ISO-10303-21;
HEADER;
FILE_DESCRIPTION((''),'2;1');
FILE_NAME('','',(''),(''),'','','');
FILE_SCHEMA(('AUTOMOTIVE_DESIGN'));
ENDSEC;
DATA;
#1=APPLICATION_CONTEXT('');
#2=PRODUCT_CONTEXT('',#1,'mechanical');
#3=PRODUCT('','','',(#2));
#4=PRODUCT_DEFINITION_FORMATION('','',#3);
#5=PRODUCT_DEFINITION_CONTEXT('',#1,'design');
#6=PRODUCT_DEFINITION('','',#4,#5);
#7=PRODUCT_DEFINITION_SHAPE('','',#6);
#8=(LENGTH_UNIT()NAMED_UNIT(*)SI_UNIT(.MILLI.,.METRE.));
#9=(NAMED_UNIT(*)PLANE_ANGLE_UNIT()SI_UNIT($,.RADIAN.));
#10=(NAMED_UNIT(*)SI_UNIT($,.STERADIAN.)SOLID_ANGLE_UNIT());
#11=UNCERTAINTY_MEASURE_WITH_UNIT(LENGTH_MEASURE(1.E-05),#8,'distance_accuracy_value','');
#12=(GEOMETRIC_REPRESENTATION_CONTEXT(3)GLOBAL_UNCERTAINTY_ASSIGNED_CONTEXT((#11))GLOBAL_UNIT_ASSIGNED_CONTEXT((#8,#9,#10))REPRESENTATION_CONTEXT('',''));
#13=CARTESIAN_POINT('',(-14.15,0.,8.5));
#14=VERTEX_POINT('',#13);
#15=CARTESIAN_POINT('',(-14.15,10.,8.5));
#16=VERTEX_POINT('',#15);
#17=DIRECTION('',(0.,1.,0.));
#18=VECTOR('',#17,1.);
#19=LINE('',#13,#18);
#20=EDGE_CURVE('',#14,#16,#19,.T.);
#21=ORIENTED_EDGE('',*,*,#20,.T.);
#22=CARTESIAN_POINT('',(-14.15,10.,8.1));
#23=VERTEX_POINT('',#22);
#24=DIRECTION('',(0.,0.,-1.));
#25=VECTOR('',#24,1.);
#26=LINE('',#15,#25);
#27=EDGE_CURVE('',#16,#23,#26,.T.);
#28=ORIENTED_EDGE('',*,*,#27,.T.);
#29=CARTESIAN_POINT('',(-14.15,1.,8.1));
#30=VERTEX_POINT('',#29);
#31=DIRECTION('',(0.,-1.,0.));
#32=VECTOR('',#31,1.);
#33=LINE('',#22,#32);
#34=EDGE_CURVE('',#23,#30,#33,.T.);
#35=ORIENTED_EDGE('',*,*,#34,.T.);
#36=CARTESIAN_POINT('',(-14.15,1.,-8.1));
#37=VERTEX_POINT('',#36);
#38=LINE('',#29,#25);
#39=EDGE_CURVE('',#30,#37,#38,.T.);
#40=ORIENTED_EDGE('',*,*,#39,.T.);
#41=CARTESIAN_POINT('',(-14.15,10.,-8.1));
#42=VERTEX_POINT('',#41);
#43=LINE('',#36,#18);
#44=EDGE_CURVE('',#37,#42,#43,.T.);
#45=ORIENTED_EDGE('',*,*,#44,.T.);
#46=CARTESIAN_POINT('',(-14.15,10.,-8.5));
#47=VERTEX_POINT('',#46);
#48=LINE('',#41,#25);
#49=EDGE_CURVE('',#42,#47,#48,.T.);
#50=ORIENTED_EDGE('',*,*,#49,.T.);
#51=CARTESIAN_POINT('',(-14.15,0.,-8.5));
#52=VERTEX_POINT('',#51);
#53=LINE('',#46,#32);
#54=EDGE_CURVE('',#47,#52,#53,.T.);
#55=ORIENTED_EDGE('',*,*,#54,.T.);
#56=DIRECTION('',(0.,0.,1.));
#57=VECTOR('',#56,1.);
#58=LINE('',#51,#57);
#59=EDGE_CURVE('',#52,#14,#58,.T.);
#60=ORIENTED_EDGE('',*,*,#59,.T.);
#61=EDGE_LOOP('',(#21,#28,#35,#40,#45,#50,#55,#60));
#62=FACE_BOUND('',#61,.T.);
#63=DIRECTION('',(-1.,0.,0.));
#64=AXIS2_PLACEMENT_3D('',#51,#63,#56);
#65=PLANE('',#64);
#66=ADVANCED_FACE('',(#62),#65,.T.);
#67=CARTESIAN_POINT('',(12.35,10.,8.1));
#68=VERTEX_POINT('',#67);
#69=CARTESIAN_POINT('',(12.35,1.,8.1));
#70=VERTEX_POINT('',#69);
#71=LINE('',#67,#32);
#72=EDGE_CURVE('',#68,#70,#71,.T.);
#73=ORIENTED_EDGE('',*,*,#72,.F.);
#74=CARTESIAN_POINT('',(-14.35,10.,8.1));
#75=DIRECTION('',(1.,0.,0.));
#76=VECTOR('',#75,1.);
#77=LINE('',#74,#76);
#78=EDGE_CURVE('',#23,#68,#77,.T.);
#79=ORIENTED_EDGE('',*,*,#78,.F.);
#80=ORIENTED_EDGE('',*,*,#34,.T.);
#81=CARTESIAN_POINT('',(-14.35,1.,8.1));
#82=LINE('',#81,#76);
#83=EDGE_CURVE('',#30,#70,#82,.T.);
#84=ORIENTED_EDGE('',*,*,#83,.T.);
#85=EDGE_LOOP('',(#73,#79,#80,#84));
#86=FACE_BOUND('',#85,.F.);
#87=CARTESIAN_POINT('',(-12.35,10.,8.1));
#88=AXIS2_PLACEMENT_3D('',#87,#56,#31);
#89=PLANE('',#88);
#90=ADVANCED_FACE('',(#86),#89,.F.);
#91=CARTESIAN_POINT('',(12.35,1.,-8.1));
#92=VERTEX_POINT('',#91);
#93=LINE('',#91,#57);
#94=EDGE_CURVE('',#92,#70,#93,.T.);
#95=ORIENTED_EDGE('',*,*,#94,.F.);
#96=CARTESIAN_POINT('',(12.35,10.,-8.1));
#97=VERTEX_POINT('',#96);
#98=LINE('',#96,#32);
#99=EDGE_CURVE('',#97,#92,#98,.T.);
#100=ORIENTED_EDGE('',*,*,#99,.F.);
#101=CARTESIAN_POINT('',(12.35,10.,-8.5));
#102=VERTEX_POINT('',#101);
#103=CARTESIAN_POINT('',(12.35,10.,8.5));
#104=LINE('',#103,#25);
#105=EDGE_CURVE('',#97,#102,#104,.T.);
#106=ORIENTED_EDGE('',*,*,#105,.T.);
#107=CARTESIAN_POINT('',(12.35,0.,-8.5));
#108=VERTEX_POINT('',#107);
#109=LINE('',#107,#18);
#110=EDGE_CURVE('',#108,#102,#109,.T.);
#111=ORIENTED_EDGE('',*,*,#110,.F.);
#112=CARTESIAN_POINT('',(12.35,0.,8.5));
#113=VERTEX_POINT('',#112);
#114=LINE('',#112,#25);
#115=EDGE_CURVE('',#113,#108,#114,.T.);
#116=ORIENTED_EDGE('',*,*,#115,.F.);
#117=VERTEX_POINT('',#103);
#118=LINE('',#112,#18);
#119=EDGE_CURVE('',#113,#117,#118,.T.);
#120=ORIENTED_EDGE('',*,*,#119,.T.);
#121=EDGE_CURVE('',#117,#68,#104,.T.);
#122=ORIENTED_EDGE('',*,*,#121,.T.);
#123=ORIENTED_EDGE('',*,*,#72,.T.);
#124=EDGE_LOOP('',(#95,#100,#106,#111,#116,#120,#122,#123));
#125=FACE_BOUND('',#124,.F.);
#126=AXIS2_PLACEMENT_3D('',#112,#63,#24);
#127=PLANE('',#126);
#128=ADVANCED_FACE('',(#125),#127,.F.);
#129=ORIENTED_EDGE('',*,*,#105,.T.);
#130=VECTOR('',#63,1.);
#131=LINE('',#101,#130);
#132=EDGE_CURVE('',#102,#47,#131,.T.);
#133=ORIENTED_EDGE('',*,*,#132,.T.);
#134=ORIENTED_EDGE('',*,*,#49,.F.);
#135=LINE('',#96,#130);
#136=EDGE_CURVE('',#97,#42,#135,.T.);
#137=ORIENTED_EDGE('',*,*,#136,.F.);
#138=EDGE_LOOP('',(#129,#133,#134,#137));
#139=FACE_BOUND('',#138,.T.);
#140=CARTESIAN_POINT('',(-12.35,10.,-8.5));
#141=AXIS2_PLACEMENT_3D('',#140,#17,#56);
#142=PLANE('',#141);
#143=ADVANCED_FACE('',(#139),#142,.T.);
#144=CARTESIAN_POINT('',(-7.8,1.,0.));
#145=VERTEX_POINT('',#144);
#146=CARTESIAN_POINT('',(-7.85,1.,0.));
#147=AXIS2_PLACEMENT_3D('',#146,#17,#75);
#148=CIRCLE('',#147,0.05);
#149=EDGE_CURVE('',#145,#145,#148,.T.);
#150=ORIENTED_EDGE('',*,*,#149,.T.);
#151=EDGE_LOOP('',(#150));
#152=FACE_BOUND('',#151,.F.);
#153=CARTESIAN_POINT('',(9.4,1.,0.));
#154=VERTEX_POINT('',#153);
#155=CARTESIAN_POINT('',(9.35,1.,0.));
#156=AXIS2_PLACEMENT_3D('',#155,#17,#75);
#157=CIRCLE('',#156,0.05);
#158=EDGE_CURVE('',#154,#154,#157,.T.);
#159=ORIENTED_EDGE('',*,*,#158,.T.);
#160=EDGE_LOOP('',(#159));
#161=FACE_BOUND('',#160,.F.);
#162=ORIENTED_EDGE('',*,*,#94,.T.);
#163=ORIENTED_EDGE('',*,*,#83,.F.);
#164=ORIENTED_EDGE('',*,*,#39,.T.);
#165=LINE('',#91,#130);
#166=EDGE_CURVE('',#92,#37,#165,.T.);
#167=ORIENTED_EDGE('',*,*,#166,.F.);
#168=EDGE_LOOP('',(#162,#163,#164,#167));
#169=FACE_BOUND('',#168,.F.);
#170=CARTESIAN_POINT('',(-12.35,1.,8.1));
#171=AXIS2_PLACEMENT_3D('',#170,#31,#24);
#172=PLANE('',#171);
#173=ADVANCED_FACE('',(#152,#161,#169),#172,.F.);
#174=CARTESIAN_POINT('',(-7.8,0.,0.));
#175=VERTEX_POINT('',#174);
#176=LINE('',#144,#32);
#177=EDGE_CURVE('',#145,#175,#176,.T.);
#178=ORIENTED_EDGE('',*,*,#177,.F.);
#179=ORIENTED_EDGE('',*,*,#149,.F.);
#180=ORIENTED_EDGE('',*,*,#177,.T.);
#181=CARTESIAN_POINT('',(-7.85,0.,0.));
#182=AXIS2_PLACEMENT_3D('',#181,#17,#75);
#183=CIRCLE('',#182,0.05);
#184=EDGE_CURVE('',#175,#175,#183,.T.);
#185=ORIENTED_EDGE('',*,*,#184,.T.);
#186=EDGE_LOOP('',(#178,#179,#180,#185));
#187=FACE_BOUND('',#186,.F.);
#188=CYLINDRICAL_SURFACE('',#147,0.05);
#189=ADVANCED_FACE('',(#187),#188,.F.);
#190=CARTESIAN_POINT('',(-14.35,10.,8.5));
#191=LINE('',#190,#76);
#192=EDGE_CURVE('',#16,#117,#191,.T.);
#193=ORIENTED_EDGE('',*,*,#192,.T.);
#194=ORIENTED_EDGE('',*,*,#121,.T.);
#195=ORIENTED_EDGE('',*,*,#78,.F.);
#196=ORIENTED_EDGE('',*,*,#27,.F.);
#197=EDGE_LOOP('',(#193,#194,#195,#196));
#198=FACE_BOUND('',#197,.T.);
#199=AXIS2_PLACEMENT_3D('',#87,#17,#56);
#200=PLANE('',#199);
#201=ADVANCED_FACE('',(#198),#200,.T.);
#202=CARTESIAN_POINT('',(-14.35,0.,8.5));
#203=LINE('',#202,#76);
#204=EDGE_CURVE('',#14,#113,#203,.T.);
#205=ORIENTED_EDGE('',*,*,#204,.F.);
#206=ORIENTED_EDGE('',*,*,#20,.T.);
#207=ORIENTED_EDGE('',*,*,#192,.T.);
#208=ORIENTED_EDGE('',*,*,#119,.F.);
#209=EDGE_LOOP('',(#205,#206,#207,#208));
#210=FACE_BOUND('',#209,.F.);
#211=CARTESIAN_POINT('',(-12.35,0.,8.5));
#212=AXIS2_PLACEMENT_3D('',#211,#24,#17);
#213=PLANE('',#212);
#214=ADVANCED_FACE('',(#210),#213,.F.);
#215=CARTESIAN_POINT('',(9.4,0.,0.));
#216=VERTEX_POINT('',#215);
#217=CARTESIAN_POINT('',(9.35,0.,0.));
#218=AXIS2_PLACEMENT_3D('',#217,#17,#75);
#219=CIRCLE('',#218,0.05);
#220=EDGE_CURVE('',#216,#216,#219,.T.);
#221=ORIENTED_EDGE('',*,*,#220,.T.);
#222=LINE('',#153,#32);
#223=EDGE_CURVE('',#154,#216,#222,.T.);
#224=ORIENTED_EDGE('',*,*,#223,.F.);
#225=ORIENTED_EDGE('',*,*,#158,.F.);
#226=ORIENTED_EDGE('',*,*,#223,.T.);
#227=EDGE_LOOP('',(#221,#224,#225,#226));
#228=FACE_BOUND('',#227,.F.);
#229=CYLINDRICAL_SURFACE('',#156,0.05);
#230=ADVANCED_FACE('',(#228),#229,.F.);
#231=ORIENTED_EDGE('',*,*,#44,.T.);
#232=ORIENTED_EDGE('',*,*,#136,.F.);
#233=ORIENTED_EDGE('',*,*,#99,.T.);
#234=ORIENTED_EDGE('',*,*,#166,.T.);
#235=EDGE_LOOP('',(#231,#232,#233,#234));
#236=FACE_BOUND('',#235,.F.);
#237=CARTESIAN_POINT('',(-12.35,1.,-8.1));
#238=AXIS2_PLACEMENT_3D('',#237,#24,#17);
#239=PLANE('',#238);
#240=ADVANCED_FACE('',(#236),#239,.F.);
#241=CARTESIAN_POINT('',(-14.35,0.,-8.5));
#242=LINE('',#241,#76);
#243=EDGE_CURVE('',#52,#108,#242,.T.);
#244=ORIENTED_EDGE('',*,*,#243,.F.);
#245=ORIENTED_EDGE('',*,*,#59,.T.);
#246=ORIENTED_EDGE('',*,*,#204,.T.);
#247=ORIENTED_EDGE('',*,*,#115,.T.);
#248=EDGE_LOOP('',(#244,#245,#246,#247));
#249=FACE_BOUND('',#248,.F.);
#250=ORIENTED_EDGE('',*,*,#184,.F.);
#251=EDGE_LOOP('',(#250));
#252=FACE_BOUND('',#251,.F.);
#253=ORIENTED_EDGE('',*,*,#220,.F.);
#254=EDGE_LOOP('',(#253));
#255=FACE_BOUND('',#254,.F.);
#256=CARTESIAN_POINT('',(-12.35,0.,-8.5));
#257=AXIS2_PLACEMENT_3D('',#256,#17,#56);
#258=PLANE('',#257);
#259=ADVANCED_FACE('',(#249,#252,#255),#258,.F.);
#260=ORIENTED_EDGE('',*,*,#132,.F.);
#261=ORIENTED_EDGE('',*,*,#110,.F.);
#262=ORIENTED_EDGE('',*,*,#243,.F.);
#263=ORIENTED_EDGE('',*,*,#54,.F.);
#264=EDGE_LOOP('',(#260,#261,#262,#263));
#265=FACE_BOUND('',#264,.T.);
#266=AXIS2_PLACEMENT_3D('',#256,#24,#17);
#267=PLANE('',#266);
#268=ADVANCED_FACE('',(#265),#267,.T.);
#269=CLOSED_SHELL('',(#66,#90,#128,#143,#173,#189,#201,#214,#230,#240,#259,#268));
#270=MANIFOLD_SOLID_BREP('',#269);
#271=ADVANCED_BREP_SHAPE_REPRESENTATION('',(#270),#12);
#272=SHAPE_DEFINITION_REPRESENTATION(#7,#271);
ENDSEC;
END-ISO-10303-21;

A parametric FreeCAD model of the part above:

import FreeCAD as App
import Part
import Sketcher

V = App.Vector

doc = App.newDocument("Part")
body = doc.addObject("PartDesign::Body", "Body")

sketch1 = body.newObject("Sketcher::SketchObject", "Sketch")
sketch1.AttachmentSupport = (doc.getObject("XZ_Plane"), [""])
sketch1.MapMode = "FlatFace"
sketch1.addGeometry([
    Part.LineSegment(V(-12, -8, 0), V(-12, 8, 0)),
    Part.LineSegment(V(-12, 8, 0), V(12, 8, 0)),
    Part.LineSegment(V(12, 8, 0), V(12, -8, 0)),
    Part.LineSegment(V(12, -8, 0), V(-12, -8, 0)),
], False)
sketch1.addConstraint([
    Sketcher.Constraint("Coincident", 0, 2, 1, 1),
    Sketcher.Constraint("Coincident", 1, 2, 2, 1),
    Sketcher.Constraint("Coincident", 2, 2, 3, 1),
    Sketcher.Constraint("Coincident", 3, 2, 0, 1),
    Sketcher.Constraint("Vertical", 0),
    Sketcher.Constraint("Horizontal", 1),
    Sketcher.Constraint("Vertical", 2),
    Sketcher.Constraint("Horizontal", 3),
    Sketcher.Constraint("Symmetric", 0, 2, 2, 2, -1, 1),
    Sketcher.Constraint("DistanceY", 0, 1, 0, 2, 17.0),
    Sketcher.Constraint("DistanceX", 1, 1, 1, 2, 24.7),
])
pad1 = body.newObject("PartDesign::Pad", "Pad")
pad1.Profile = sketch1
pad1.Length = 10
pad1.Reversed = True

sketch2 = body.newObject("Sketcher::SketchObject", "Sketch001")
sketch2.AttachmentSupport = (doc.getObject("XZ_Plane"), [""])
sketch2.MapMode = "FlatFace"
sketch2.AttachmentOffset = App.Placement(V(0, 0, -10), App.Rotation())
sketch2.addGeometry([
    Part.LineSegment(V(12, -8, 0), V(-12, -8, 0)),
    Part.LineSegment(V(-12, -8, 0), V(-12, 8, 0)),
    Part.LineSegment(V(-12, 8, 0), V(12, 8, 0)),
    Part.LineSegment(V(12, 8, 0), V(12, -8, 0)),
], False)
sketch2.addConstraint([
    Sketcher.Constraint("Coincident", 0, 2, 1, 1),
    Sketcher.Constraint("Coincident", 1, 2, 2, 1),
    Sketcher.Constraint("Coincident", 2, 2, 3, 1),
    Sketcher.Constraint("Coincident", 3, 2, 0, 1),
    Sketcher.Constraint("Horizontal", 0),
    Sketcher.Constraint("Vertical", 1),
    Sketcher.Constraint("Horizontal", 2),
    Sketcher.Constraint("Vertical", 3),
    Sketcher.Constraint("Symmetric", 0, 2, 2, 2, -1, 1),
    Sketcher.Constraint("DistanceX", 0, 2, 0, 1, 24.7),
    Sketcher.Constraint("DistanceY", 1, 1, 1, 2, 16.2),
])
pocket1 = body.newObject("PartDesign::Pocket", "Pocket")
pocket1.Profile = sketch2
pocket1.Length = 9
pocket1.Reversed = True

sketch3 = body.newObject("Sketcher::SketchObject", "Sketch002")
sketch3.AttachmentSupport = (doc.getObject("XZ_Plane"), [""])
sketch3.MapMode = "FlatFace"
sketch3.addGeometry([
    Part.Circle(V(-9.3, 0, 0), V(0, 0, 1), 1.5),
    Part.Circle(V(9.3, 0, 0), V(0, 0, 1), 1.5),
], False)
sketch3.addConstraint([
    Sketcher.Constraint("Equal", 0, 1),
    Sketcher.Constraint("Symmetric", 0, 3, 1, 3, -1, 1),
    Sketcher.Constraint("PointOnObject", 0, 3, -1),
    Sketcher.Constraint("Diameter", 0, 3.0),
    Sketcher.Constraint("DistanceX", 0, 3, 1, 3, 18.7),
])
pocket2 = body.newObject("PartDesign::Pocket", "Pocket001")
pocket2.Profile = sketch3
pocket2.Length = 1

sketch4 = body.newObject("Sketcher::SketchObject", "Sketch003")
sketch4.AttachmentSupport = (doc.getObject("YZ_Plane"), [""])
sketch4.MapMode = "FlatFace"
sketch4.AttachmentOffset = App.Placement(V(0, 0, -12.35), App.Rotation())
sketch4.addGeometry([
    Part.LineSegment(V(1, 8.1, 0), V(1, -8.1, 0)),
    Part.LineSegment(V(1, -8.1, 0), V(10, -8.1, 0)),
    Part.LineSegment(V(10, -8.1, 0), V(10, -8.5, 0)),
    Part.LineSegment(V(10, -8.5, 0), V(0, -8.5, 0)),
    Part.LineSegment(V(0, -8.5, 0), V(0, 8.5, 0)),
    Part.LineSegment(V(0, 8.5, 0), V(10, 8.5, 0)),
    Part.LineSegment(V(10, 8.5, 0), V(10, 8.1, 0)),
    Part.LineSegment(V(10, 8.1, 0), V(1, 8.1, 0)),
], False)
sketch4.addConstraint([
    Sketcher.Constraint("Coincident", 0, 2, 1, 1),
    Sketcher.Constraint("Coincident", 1, 2, 2, 1),
    Sketcher.Constraint("Coincident", 2, 2, 3, 1),
    Sketcher.Constraint("Coincident", 3, 2, 4, 1),
    Sketcher.Constraint("Coincident", 4, 2, 5, 1),
    Sketcher.Constraint("Coincident", 5, 2, 6, 1),
    Sketcher.Constraint("Coincident", 6, 2, 7, 1),
    Sketcher.Constraint("Coincident", 7, 2, 0, 1),
    Sketcher.Constraint("Vertical", 0),
    Sketcher.Constraint("Horizontal", 1),
    Sketcher.Constraint("Vertical", 2),
    Sketcher.Constraint("Horizontal", 3),
    Sketcher.Constraint("Vertical", 4),
    Sketcher.Constraint("Horizontal", 5),
    Sketcher.Constraint("Vertical", 6),
    Sketcher.Constraint("Horizontal", 7),
    Sketcher.Constraint("Symmetric", 3, 2, 4, 2, -1, 1),
    Sketcher.Constraint("Symmetric", 1, 2, 6, 2, -1),
    Sketcher.Constraint("DistanceX", 1, 1, 1, 2, 9.0),
    Sketcher.Constraint("DistanceX", 3, 2, 3, 1, 10.0),
    Sketcher.Constraint("DistanceY", 4, 1, 4, 2, 17.0),
    Sketcher.Constraint("DistanceY", 0, 2, 0, 1, 16.2),
])
pad2 = body.newObject("PartDesign::Pad", "Pad001")
pad2.Profile = sketch4
pad2.Length = 2
pad2.Reversed = True

sketch5 = body.newObject("Sketcher::SketchObject", "Sketch004")
sketch5.AttachmentSupport = (doc.getObject("YZ_Plane"), [""])
sketch5.MapMode = "FlatFace"
sketch5.AttachmentOffset = App.Placement(V(0, 0, -14.35), App.Rotation())
sketch5.addGeometry([
    Part.LineSegment(V(1, 8.1, 0), V(1, -8.1, 0)),
    Part.LineSegment(V(1, -8.1, 0), V(10, -8.1, 0)),
    Part.LineSegment(V(10, -8.1, 0), V(10, -8.5, 0)),
    Part.LineSegment(V(10, -8.5, 0), V(0, -8.5, 0)),
    Part.LineSegment(V(0, -8.5, 0), V(0, 8.5, 0)),
    Part.LineSegment(V(0, 8.5, 0), V(10, 8.5, 0)),
    Part.LineSegment(V(10, 8.5, 0), V(10, 8.1, 0)),
    Part.LineSegment(V(10, 8.1, 0), V(1, 8.1, 0)),
], False)
sketch5.addConstraint([
    Sketcher.Constraint("Coincident", 0, 2, 1, 1),
    Sketcher.Constraint("Coincident", 1, 2, 2, 1),
    Sketcher.Constraint("Coincident", 2, 2, 3, 1),
    Sketcher.Constraint("Coincident", 3, 2, 4, 1),
    Sketcher.Constraint("Coincident", 4, 2, 5, 1),
    Sketcher.Constraint("Coincident", 5, 2, 6, 1),
    Sketcher.Constraint("Coincident", 6, 2, 7, 1),
    Sketcher.Constraint("Coincident", 7, 2, 0, 1),
    Sketcher.Constraint("Vertical", 0),
    Sketcher.Constraint("Horizontal", 1),
    Sketcher.Constraint("Vertical", 2),
    Sketcher.Constraint("Horizontal", 3),
    Sketcher.Constraint("Vertical", 4),
    Sketcher.Constraint("Horizontal", 5),
    Sketcher.Constraint("Vertical", 6),
    Sketcher.Constraint("Horizontal", 7),
    Sketcher.Constraint("Symmetric", 3, 2, 4, 2, -1, 1),
    Sketcher.Constraint("Symmetric", 1, 2, 6, 2, -1),
    Sketcher.Constraint("DistanceX", 1, 1, 1, 2, 9.0),
    Sketcher.Constraint("DistanceX", 3, 2, 3, 1, 10.0),
    Sketcher.Constraint("DistanceY", 4, 1, 4, 2, 17.0),
    Sketcher.Constraint("DistanceY", 0, 2, 0, 1, 16.2),
])
pocket3 = body.newObject("PartDesign::Pocket", "Pocket002")
pocket3.Profile = sketch5
pocket3.Length = 0.2
pocket3.Reversed = True

sketch6 = body.newObject("Sketcher::SketchObject", "Sketch005")
sketch6.AttachmentSupport = (doc.getObject("XZ_Plane"), [""])
sketch6.MapMode = "FlatFace"
sketch6.addGeometry(Part.Circle(V(-9.3, 0, 0), V(0, 0, 1), 1.5), False)
sketch6.addConstraint([
    Sketcher.Constraint("PointOnObject", 0, 3, -1),
    Sketcher.Constraint("Diameter", 0, 3.0),
    Sketcher.Constraint("DistanceX", 0, 3, -1, 1, 9.35),
])
pad3 = body.newObject("PartDesign::Pad", "Pad002")
pad3.Profile = sketch6
pad3.Length = 1
pad3.Reversed = True

sketch7 = body.newObject("Sketcher::SketchObject", "Sketch006")
sketch7.AttachmentSupport = (doc.getObject("XZ_Plane"), [""])
sketch7.MapMode = "FlatFace"
sketch7.addGeometry(Part.Circle(V(-7.8, 0, 0), V(0, 0, 1), 1.5), False)
sketch7.addConstraint([
    Sketcher.Constraint("PointOnObject", 0, 3, -1),
    Sketcher.Constraint("Diameter", 0, 3.0),
    Sketcher.Constraint("DistanceX", 0, 3, -1, 1, 7.85),
])
pocket4 = body.newObject("PartDesign::Pocket", "Pocket003")
pocket4.Profile = sketch7
pocket4.Length = 1

sketch8 = body.newObject("Sketcher::SketchObject", "Sketch007")
sketch8.AttachmentSupport = (doc.getObject("XZ_Plane"), [""])
sketch8.MapMode = "FlatFace"
sketch8.AttachmentOffset = App.Placement(V(0, 0, -1), App.Rotation())
sketch8.addGeometry([
    Part.Circle(V(-7.85, 0, 0), V(0, 0, 1), 1.5),
    Part.Circle(V(-7.85, 0, 0), V(0, 0, 1), 0.05),
    Part.Circle(V(9.35, 0, 0), V(0, 0, 1), 1.5),
    Part.Circle(V(9.35, 0, 0), V(0, 0, 1), 0.05),
], False)
sketch8.addConstraint([
    Sketcher.Constraint("Coincident", 1, 3, 0, 3),
    Sketcher.Constraint("Coincident", 3, 3, 2, 3),
    Sketcher.Constraint("Equal", 0, 2),
    Sketcher.Constraint("Equal", 1, 3),
    Sketcher.Constraint("PointOnObject", 0, 3, -1),
    Sketcher.Constraint("PointOnObject", 2, 3, -1),
    Sketcher.Constraint("Diameter", 1, 0.1),
    Sketcher.Constraint("Diameter", 0, 3.0),
    Sketcher.Constraint("DistanceX", 0, 3, 2, 3, 17.2),
    Sketcher.Constraint("DistanceX", 0, 3, -1, 1, 7.85),
])
pad4 = body.newObject("PartDesign::Pad", "Pad003")
pad4.Profile = sketch8
pad4.Length = 1

doc.recompute()
